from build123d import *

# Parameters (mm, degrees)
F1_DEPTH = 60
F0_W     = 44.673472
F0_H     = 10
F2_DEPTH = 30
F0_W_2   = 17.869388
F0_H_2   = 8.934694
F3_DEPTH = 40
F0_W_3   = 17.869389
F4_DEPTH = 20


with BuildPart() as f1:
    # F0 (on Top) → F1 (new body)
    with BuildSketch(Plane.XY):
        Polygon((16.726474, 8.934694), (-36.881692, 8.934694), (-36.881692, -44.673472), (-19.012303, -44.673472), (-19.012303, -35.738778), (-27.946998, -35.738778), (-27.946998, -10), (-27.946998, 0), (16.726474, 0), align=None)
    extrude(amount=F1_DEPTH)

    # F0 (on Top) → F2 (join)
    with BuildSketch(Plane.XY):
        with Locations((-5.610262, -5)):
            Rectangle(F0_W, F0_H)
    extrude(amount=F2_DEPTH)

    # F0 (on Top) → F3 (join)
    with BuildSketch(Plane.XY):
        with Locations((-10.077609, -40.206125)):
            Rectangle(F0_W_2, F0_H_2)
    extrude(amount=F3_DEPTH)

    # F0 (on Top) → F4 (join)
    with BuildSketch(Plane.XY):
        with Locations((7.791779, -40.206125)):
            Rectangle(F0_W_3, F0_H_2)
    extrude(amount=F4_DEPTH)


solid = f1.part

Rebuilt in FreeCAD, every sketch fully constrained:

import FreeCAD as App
import Part
import Sketcher


def add_polygon(sketch, points):
    """Adds a closed chain of lines whose ends are joined by coincident constraints."""
    first, n = sketch.GeometryCount, len(points)
    for a, b in zip(points, points[1:] + points[:1]):
        sketch.addGeometry(Part.LineSegment(App.Vector(*a, 0), App.Vector(*b, 0)), False)
    for i in range(n):
        sketch.addConstraint(Sketcher.Constraint("Coincident", first + i, 2, first + (i + 1) % n, 1))

doc = App.newDocument("Part")
params = doc.addObject("Spreadsheet::Sheet", "Params")
for row, (alias, value) in enumerate([
    ("pad1_length", "60 mm"),
    ("sketch2_height", "10 mm"),
    ("pad2_length", "30 mm"),
    ("pad3_length", "40 mm"),
    ("pad4_length", "20 mm"),
], start=1):
    params.set(f"A{row}", alias)
    params.set(f"B{row}", "=" + value)
    params.setAlias(f"B{row}", alias)

body = doc.addObject("PartDesign::Body", "Body")

# Sketch on XY plane
sketch1 = body.newObject("Sketcher::SketchObject", "Sketch")
sketch1.AttachmentSupport = (doc.getObject("XY_Plane"), [""])
sketch1.MapMode = "FlatFace"
add_polygon(sketch1, [(16.726474, 8.934694), (-36.881692, 8.934694), (-36.881692, -44.673472), (-19.012303, -44.673472), (-19.012303, -35.738778), (-27.946998, -35.738778), (-27.946998, 0), (16.726474, 0)])  # lines 0-7
sketch1.addConstraint(Sketcher.Constraint("Horizontal", 0))
sketch1.addConstraint(Sketcher.Constraint("Vertical", 1))
sketch1.addConstraint(Sketcher.Constraint("Horizontal", 2))
sketch1.addConstraint(Sketcher.Constraint("Vertical", 3))
sketch1.addConstraint(Sketcher.Constraint("Horizontal", 4))
sketch1.addConstraint(Sketcher.Constraint("Vertical", 5))
sketch1.addConstraint(Sketcher.Constraint("Horizontal", 6))
sketch1.addConstraint(Sketcher.Constraint("Vertical", 7))
sketch1.addConstraint(Sketcher.Constraint("PointOnObject", 5, 2, -1))
sketch1.addConstraint(Sketcher.Constraint("Equal", 0, 1))
sketch1.addConstraint(Sketcher.Constraint("Equal", 4, 3))
sketch1.addConstraint(Sketcher.Constraint("Equal", 3, 7))
sketch1.addConstraint(Sketcher.Constraint("DistanceX", 4, 2, -1, 1, 27.946998))
sketch1.addConstraint(Sketcher.Constraint("DistanceX", 2, 1, 2, 2, 17.869389))
sketch1.addConstraint(Sketcher.Constraint("DistanceY", 5, 1, 5, 2, 35.738778))
sketch1.addConstraint(Sketcher.Constraint("DistanceX", 0, 2, 0, 1, 53.608166))
pad1 = body.newObject("PartDesign::Pad", "Pad")
pad1.Profile = sketch1
pad1.setExpression("Length", "Params.pad1_length")

# Sketch on XY plane
sketch2 = body.newObject("Sketcher::SketchObject", "Sketch001")
sketch2.AttachmentSupport = (doc.getObject("XY_Plane"), [""])
sketch2.MapMode = "FlatFace"
add_polygon(sketch2, [(-27.946998, 0), (-27.946998, -10), (16.726474, -10), (16.726474, 0)])  # lines 0-3
sketch2.addConstraint(Sketcher.Constraint("Vertical", 0))
sketch2.addConstraint(Sketcher.Constraint("Horizontal", 1))
sketch2.addConstraint(Sketcher.Constraint("Vertical", 2))
sketch2.addConstraint(Sketcher.Constraint("Horizontal", 3))
sketch2.addConstraint(Sketcher.Constraint("PointOnObject", 2, 2, -1))
sketch2.addConstraint(Sketcher.Constraint("DistanceY", 0, 2, 0, 1, 10.0))
sketch2.addConstraint(Sketcher.Constraint("DistanceX", 0, 2, -1, 1, 27.946998))
sketch2.addConstraint(Sketcher.Constraint("DistanceX", 1, 1, 1, 2, 44.673472))
sketch2.setExpression("Constraints[9]", "Params.sketch2_height")
pad2 = body.newObject("PartDesign::Pad", "Pad001")
pad2.Profile = sketch2
pad2.setExpression("Length", "Params.pad2_length")

# Sketch on XY plane
sketch3 = body.newObject("Sketcher::SketchObject", "Sketch002")
sketch3.AttachmentSupport = (doc.getObject("XY_Plane"), [""])
sketch3.MapMode = "FlatFace"
add_polygon(sketch3, [(-19.012303, -35.738778), (-19.012303, -44.673472), (-1.142915, -44.673472), (-1.142915, -35.738778)])  # lines 0-3
sketch3.addConstraint(Sketcher.Constraint("Vertical", 0))
sketch3.addConstraint(Sketcher.Constraint("Horizontal", 1))
sketch3.addConstraint(Sketcher.Constraint("Vertical", 2))
sketch3.addConstraint(Sketcher.Constraint("Horizontal", 3))
sketch3.addConstraint(Sketcher.Constraint("DistanceX", 1, 1, 1, 2, 17.869388))
sketch3.addConstraint(Sketcher.Constraint("DistanceY", 0, 2, 0, 1, 8.934694))
sketch3.addConstraint(Sketcher.Constraint("DistanceY", 0, 2, -1, 1, 44.673472))
sketch3.addConstraint(Sketcher.Constraint("DistanceX", 0, 2, -1, 1, 19.012303))
pad3 = body.newObject("PartDesign::Pad", "Pad002")
pad3.Profile = sketch3
pad3.setExpression("Length", "Params.pad3_length")

# Sketch on XY plane
sketch4 = body.newObject("Sketcher::SketchObject", "Sketch003")
sketch4.AttachmentSupport = (doc.getObject("XY_Plane"), [""])
sketch4.MapMode = "FlatFace"
add_polygon(sketch4, [(-1.142915, -35.738778), (-1.142915, -44.673472), (16.726474, -44.673472), (16.726474, -35.738778)])  # lines 0-3
sketch4.addConstraint(Sketcher.Constraint("Vertical", 0))
sketch4.addConstraint(Sketcher.Constraint("Horizontal", 1))
sketch4.addConstraint(Sketcher.Constraint("Vertical", 2))
sketch4.addConstraint(Sketcher.Constraint("Horizontal", 3))
sketch4.addConstraint(Sketcher.Constraint("DistanceX", 1, 1, 1, 2, 17.869389))
sketch4.addConstraint(Sketcher.Constraint("DistanceY", 0, 2, 0, 1, 8.934694))
sketch4.addConstraint(Sketcher.Constraint("DistanceY", 0, 2, -1, 1, 44.673472))
sketch4.addConstraint(Sketcher.Constraint("DistanceX", 0, 2, -1, 1, 1.142915))
pad4 = body.newObject("PartDesign::Pad", "Pad003")
pad4.Profile = sketch4
pad4.setExpression("Length", "Params.pad4_length")

doc.recompute()
